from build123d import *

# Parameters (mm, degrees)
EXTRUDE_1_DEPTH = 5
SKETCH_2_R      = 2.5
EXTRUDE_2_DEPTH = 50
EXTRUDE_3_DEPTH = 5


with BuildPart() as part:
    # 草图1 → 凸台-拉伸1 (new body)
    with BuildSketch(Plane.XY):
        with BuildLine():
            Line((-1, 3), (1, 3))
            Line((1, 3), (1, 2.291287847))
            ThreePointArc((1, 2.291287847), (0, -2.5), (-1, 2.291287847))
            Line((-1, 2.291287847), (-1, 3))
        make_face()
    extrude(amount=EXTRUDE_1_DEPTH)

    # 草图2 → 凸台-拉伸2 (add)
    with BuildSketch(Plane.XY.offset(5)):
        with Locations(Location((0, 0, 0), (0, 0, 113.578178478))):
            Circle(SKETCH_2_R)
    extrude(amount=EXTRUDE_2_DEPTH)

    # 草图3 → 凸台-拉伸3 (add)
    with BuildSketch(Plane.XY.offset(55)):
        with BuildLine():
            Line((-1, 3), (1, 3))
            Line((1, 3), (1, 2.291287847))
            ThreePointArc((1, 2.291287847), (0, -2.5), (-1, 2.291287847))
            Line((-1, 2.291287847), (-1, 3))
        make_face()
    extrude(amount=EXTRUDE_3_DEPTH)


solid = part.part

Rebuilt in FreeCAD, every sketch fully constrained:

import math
import FreeCAD as App
import Part
import Sketcher

V = App.Vector

doc = App.newDocument("Part")
body = doc.addObject("PartDesign::Body", "Body")

# Sketch on XY plane
sketch1 = body.newObject("Sketcher::SketchObject", "Sketch")
sketch1.AttachmentSupport = (doc.getObject("XY_Plane"), [""])
sketch1.MapMode = "FlatFace"
sketch1.addGeometry(Part.LineSegment(V(1, 3, 0), V(-1, 3, 0)), False)
sketch1.addGeometry(Part.LineSegment(V(-1, 3, 0), V(-1, 2.3, 0)), False)
sketch1.addGeometry(Part.ArcOfCircle(Part.Circle(V(0, 0, 0), V(0, 0, 1), 2.5), math.radians(114), math.radians(426)), False)
sketch1.addGeometry(Part.LineSegment(V(1, 2.3, 0), V(1, 3, 0)), False)
sketch1.addConstraint(Sketcher.Constraint("Coincident", 0, 2, 1, 1))
sketch1.addConstraint(Sketcher.Constraint("Coincident", 1, 2, 2, 1))
sketch1.addConstraint(Sketcher.Constraint("Coincident", 2, 2, 3, 1))
sketch1.addConstraint(Sketcher.Constraint("Coincident", 3, 2, 0, 1))
sketch1.addConstraint(Sketcher.Constraint("Horizontal", 0))
sketch1.addConstraint(Sketcher.Constraint("Vertical", 1))
sketch1.addConstraint(Sketcher.Constraint("Vertical", 3))
sketch1.addConstraint(Sketcher.Constraint("Coincident", 2, 3, -1, 1))
sketch1.addConstraint(Sketcher.Constraint("Horizontal", 1, 2, 2, 2))
sketch1.addConstraint(Sketcher.Constraint("Radius", 2, 2.5))
sketch1.addConstraint(Sketcher.Constraint("DistanceX", 0, 2, 0, 1, 2.0))
sketch1.addConstraint(Sketcher.Constraint("DistanceY", -1, 1, 0, 2, 3.0))
pad1 = body.newObject("PartDesign::Pad", "Pad")
pad1.Profile = sketch1
pad1.Length = 5

# Sketch on XY plane
sketch2 = body.newObject("Sketcher::SketchObject", "Sketch001")
sketch2.AttachmentSupport = (doc.getObject("XY_Plane"), [""])
sketch2.MapMode = "FlatFace"
sketch2.AttachmentOffset = App.Placement(V(0, 0, 5), App.Rotation())
sketch2.addGeometry(Part.Circle(V(0, 0, 0), V(0, 0, 1), 2.5), False)
sketch2.addConstraint(Sketcher.Constraint("Coincident", 0, 3, -1, 1))
sketch2.addConstraint(Sketcher.Constraint("Diameter", 0, 5.0))
pad2 = body.newObject("PartDesign::Pad", "Pad001")
pad2.Profile = sketch2
pad2.Length = 50

# Sketch on XY plane
sketch3 = body.newObject("Sketcher::SketchObject", "Sketch002")
sketch3.AttachmentSupport = (doc.getObject("XY_Plane"), [""])
sketch3.MapMode = "FlatFace"
sketch3.AttachmentOffset = App.Placement(V(0, 0, 55), App.Rotation())
sketch3.addGeometry(Part.LineSegment(V(1, 3, 0), V(-1, 3, 0)), False)
sketch3.addGeometry(Part.LineSegment(V(-1, 3, 0), V(-1, 2.3, 0)), False)
sketch3.addGeometry(Part.ArcOfCircle(Part.Circle(V(0, 0, 0), V(0, 0, 1), 2.5), math.radians(114), math.radians(426)), False)
sketch3.addGeometry(Part.LineSegment(V(1, 2.3, 0), V(1, 3, 0)), False)
sketch3.addConstraint(Sketcher.Constraint("Coincident", 0, 2, 1, 1))
sketch3.addConstraint(Sketcher.Constraint("Coincident", 1, 2, 2, 1))
sketch3.addConstraint(Sketcher.Constraint("Coincident", 2, 2, 3, 1))
sketch3.addConstraint(Sketcher.Constraint("Coincident", 3, 2, 0, 1))
sketch3.addConstraint(Sketcher.Constraint("Horizontal", 0))
sketch3.addConstraint(Sketcher.Constraint("Vertical", 1))
sketch3.addConstraint(Sketcher.Constraint("Vertical", 3))
sketch3.addConstraint(Sketcher.Constraint("Coincident", 2, 3, -1, 1))
sketch3.addConstraint(Sketcher.Constraint("Horizontal", 1, 2, 2, 2))
sketch3.addConstraint(Sketcher.Constraint("Radius", 2, 2.5))
sketch3.addConstraint(Sketcher.Constraint("DistanceX", 0, 2, 0, 1, 2.0))
sketch3.addConstraint(Sketcher.Constraint("DistanceY", -1, 1, 0, 2, 3.0))
pad3 = body.newObject("PartDesign::Pad", "Pad002")
pad3.Profile = sketch3
pad3.Length = 5

doc.recompute()
